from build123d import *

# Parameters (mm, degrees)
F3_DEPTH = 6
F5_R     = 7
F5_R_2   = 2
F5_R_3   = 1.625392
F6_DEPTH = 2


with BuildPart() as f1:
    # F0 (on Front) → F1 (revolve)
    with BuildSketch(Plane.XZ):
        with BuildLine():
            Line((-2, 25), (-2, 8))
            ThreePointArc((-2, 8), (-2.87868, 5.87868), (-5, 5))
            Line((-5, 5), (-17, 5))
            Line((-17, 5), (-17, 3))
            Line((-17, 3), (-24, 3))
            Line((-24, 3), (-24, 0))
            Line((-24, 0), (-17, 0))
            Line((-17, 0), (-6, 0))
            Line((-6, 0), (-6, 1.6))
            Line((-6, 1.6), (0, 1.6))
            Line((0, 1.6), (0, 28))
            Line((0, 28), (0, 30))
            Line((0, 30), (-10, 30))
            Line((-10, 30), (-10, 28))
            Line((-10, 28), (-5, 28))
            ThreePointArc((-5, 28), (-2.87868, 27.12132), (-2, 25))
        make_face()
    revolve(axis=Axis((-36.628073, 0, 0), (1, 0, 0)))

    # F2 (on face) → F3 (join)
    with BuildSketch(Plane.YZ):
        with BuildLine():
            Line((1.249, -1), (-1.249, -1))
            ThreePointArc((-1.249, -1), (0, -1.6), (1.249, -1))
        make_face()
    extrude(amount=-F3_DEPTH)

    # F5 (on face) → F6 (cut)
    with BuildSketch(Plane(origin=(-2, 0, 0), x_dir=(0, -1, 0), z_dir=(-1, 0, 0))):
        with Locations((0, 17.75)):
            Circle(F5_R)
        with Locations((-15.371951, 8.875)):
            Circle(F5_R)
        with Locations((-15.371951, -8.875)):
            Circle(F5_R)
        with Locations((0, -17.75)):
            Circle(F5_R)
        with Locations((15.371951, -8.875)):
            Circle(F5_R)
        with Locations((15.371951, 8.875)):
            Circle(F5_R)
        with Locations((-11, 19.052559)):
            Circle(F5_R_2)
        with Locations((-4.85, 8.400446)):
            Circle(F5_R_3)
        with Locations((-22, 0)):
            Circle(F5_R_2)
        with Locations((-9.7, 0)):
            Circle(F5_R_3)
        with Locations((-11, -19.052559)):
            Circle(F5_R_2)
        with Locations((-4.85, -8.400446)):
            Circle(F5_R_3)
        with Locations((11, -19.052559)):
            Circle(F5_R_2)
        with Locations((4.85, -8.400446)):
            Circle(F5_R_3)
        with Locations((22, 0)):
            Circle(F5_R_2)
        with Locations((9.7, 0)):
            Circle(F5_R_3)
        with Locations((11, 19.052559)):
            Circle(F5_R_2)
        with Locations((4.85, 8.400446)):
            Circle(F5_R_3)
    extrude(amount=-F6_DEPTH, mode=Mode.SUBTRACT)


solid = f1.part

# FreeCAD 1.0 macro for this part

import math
import FreeCAD as App
import Part
import Sketcher
Q = App.Units.Quantity

doc = App.newDocument("Part")
params = doc.addObject("Spreadsheet::Sheet", "Params")
for row, (alias, value) in enumerate([
    ("sketch1_radius", "3.000001 mm"),
    ("sketch1_width", "12 mm"),
    ("sketch1_width2", "7 mm"),
    ("sketch1_width3", "18 mm"),
    ("sketch1_width4", "6 mm"),
    ("revolution_angle", "360 deg"),
    ("sketch2_radius", "1.600001 mm"),
    ("pad1_length", "6 mm"),
    ("sketch3_diameter", "14 mm"),
    ("sketch3_diameter2", "4 mm"),
    ("pocket1_length", "2 mm"),
], start=1):
    params.set(f"A{row}", alias)
    params.set(f"B{row}", "=" + value)
    params.setAlias(f"B{row}", alias)

body = doc.addObject("PartDesign::Body", "Body")

sketch1 = body.newObject("Sketcher::SketchObject", "Sketch")
sketch1.AttachmentSupport = (doc.getObject("XZ_Plane"), [""])
sketch1.MapMode = "FlatFace"
sketch1.addGeometry([
    Part.LineSegment(App.Vector(-2, 25, 0), App.Vector(-2, 8, 0)),
    Part.ArcOfCircle(Part.Circle(App.Vector(-5.000001, 8.000001, 0), App.Vector(0, 0, 1), 3.000001), math.radians(-89.999978), math.radians(-0.000022)),
    Part.LineSegment(App.Vector(-5, 5, 0), App.Vector(-17, 5, 0)),
    Part.LineSegment(App.Vector(-17, 5, 0), App.Vector(-17, 3, 0)),
    Part.LineSegment(App.Vector(-17, 3, 0), App.Vector(-24, 3, 0)),
    Part.LineSegment(App.Vector(-24, 3, 0), App.Vector(-24, 0, 0)),
    Part.LineSegment(App.Vector(-24, 0, 0), App.Vector(-6, 0, 0)),
    Part.LineSegment(App.Vector(-6, 0, 0), App.Vector(-6, 1.6, 0)),
    Part.LineSegment(App.Vector(-6, 1.6, 0), App.Vector(0, 1.6, 0)),
    Part.LineSegment(App.Vector(0, 1.6, 0), App.Vector(0, 30, 0)),
    Part.LineSegment(App.Vector(0, 30, 0), App.Vector(-10, 30, 0)),
    Part.LineSegment(App.Vector(-10, 30, 0), App.Vector(-10, 28, 0)),
    Part.LineSegment(App.Vector(-10, 28, 0), App.Vector(-5, 28, 0)),
    Part.ArcOfCircle(Part.Circle(App.Vector(-5.000001, 24.999999, 0), App.Vector(0, 0, 1), 3.000001), math.radians(0.000022), math.radians(89.999978)),
], False)
sketch1.addConstraint([
    Sketcher.Constraint("Tangent", 0, 2, 1, 2),
    Sketcher.Constraint("Tangent", 1, 1, 2, 1),
    Sketcher.Constraint("Coincident", 2, 2, 3, 1),
    Sketcher.Constraint("Coincident", 3, 2, 4, 1),
    Sketcher.Constraint("Coincident", 4, 2, 5, 1),
    Sketcher.Constraint("Coincident", 5, 2, 6, 1),
    Sketcher.Constraint("Coincident", 6, 2, 7, 1),
    Sketcher.Constraint("Coincident", 7, 2, 8, 1),
    Sketcher.Constraint("Coincident", 8, 2, 9, 1),
    Sketcher.Constraint("Coincident", 9, 2, 10, 1),
    Sketcher.Constraint("Coincident", 10, 2, 11, 1),
    Sketcher.Constraint("Coincident", 11, 2, 12, 1),
    Sketcher.Constraint("Tangent", 12, 2, 13, 2),
    Sketcher.Constraint("Tangent", 13, 1, 0, 1),
    Sketcher.Constraint("Vertical", 0),
    Sketcher.Constraint("Horizontal", 2),
    Sketcher.Constraint("Vertical", 3),
    Sketcher.Constraint("Horizontal", 4),
    Sketcher.Constraint("Vertical", 5),
    Sketcher.Constraint("Horizontal", 6),
    Sketcher.Constraint("Vertical", 7),
    Sketcher.Constraint("Horizontal", 8),
    Sketcher.Constraint("Vertical", 9),
    Sketcher.Constraint("Horizontal", 10),
    Sketcher.Constraint("Vertical", 11),
    Sketcher.Constraint("Horizontal", 12),
    Sketcher.Constraint("Equal", 1, 13),
    Sketcher.Constraint("PointOnObject", 5, 2, -1),
    Sketcher.Constraint("PointOnObject", 8, 2, -2),
    Sketcher.Constraint("Equal", 3, 11),
    Sketcher.Constraint("Radius", 1, Q("3.000001 mm")),
    Sketcher.Constraint("DistanceX", 2, 2, 2, 1, Q("12 mm")),
    Sketcher.Constraint("DistanceX", 4, 2, 4, 1, Q("7 mm")),
    Sketcher.Constraint("DistanceX", 6, 1, 6, 2, Q("18 mm")),
    Sketcher.Constraint("DistanceX", 8, 1, 8, 2, Q("6 mm")),
    Sketcher.Constraint("DistanceX", 10, 2, 10, 1, Q("10 mm")),
    Sketcher.Constraint("DistanceY", 0, 2, 0, 1, Q("17 mm")),
    Sketcher.Constraint("DistanceY", 3, 2, 3, 1, Q("2 mm")),
    Sketcher.Constraint("DistanceY", 5, 2, 5, 1, Q("3 mm")),
    Sketcher.Constraint("DistanceY", 7, 1, 7, 2, Q("1.6 mm")),
])
sketch1.setExpression("Constraints[30]", "Params.sketch1_radius")
sketch1.setExpression("Constraints[31]", "Params.sketch1_width")
sketch1.setExpression("Constraints[32]", "Params.sketch1_width2")
sketch1.setExpression("Constraints[33]", "Params.sketch1_width3")
sketch1.setExpression("Constraints[34]", "Params.sketch1_width4")
revolution = body.newObject("PartDesign::Revolution", "Revolution")
revolution.Profile = sketch1
revolution.ReferenceAxis = (sketch1, ["H_Axis"])
revolution.setExpression("Angle", "Params.revolution_angle")

sketch2 = body.newObject("Sketcher::SketchObject", "Sketch001")
sketch2.AttachmentSupport = (doc.getObject("YZ_Plane"), [""])
sketch2.MapMode = "FlatFace"
sketch2.addGeometry([
    Part.LineSegment(App.Vector(1.249, -1, 0), App.Vector(-1.249, -1, 0)),
    Part.ArcOfCircle(Part.Circle(App.Vector(0, 0.000001, 0), App.Vector(0, 0, 1), 1.600001), math.radians(-141.317798), math.radians(-38.682202)),
], False)
sketch2.addConstraint([
    Sketcher.Constraint("Coincident", 0, 1, 1, 2),
    Sketcher.Constraint("Coincident", 1, 1, 0, 2),
    Sketcher.Constraint("Horizontal", 0),
    Sketcher.Constraint("Coincident", 1, 3, -1, 1),
    Sketcher.Constraint("Radius", 1, Q("1.600001 mm")),
    Sketcher.Constraint("DistanceY", 0, 1, -1, 1, Q("1 mm")),
])
sketch2.setExpression("Constraints[4]", "Params.sketch2_radius")
pad1 = body.newObject("PartDesign::Pad", "Pad")
pad1.Profile = sketch2
pad1.setExpression("Length", "Params.pad1_length")
pad1.Reversed = True

sketch3 = body.newObject("Sketcher::SketchObject", "Sketch002")
sketch3.AttachmentSupport = (doc.getObject("YZ_Plane"), [""])
sketch3.MapMode = "FlatFace"
sketch3.AttachmentOffset = App.Placement(App.Vector(0, 0, -2), App.Rotation())
sketch3.addGeometry([
    Part.Circle(App.Vector(0, 17.75, 0), App.Vector(0, 0, 1), 7),
    Part.Circle(App.Vector(15.371951, 8.875, 0), App.Vector(0, 0, 1), 7),
    Part.Circle(App.Vector(15.371951, -8.875, 0), App.Vector(0, 0, 1), 7),
    Part.Circle(App.Vector(0, -17.75, 0), App.Vector(0, 0, 1), 7),
    Part.Circle(App.Vector(-15.371951, -8.875, 0), App.Vector(0, 0, 1), 7),
    Part.Circle(App.Vector(-15.371951, 8.875, 0), App.Vector(0, 0, 1), 7),
    Part.Circle(App.Vector(11, 19.052559, 0), App.Vector(0, 0, 1), 2),
    Part.Circle(App.Vector(4.85, 8.400446, 0), App.Vector(0, 0, 1), 1.625392),
    Part.Circle(App.Vector(22, 0, 0), App.Vector(0, 0, 1), 2),
    Part.Circle(App.Vector(9.7, 0, 0), App.Vector(0, 0, 1), 1.625392),
    Part.Circle(App.Vector(11, -19.052559, 0), App.Vector(0, 0, 1), 2),
    Part.Circle(App.Vector(4.85, -8.400446, 0), App.Vector(0, 0, 1), 1.625392),
    Part.Circle(App.Vector(-11, -19.052559, 0), App.Vector(0, 0, 1), 2),
    Part.Circle(App.Vector(-4.85, -8.400446, 0), App.Vector(0, 0, 1), 1.625392),
    Part.Circle(App.Vector(-22, 0, 0), App.Vector(0, 0, 1), 2),
    Part.Circle(App.Vector(-9.7, 0, 0), App.Vector(0, 0, 1), 1.625392),
    Part.Circle(App.Vector(-11, 19.052559, 0), App.Vector(0, 0, 1), 2),
    Part.Circle(App.Vector(-4.85, 8.400446, 0), App.Vector(0, 0, 1), 1.625392),
], False)
sketch3.addConstraint([
    Sketcher.Constraint("Equal", 0, 1),
    Sketcher.Constraint("Equal", 1, 2),
    Sketcher.Constraint("Equal", 2, 3),
    Sketcher.Constraint("Equal", 3, 4),
    Sketcher.Constraint("Equal", 4, 5),
    Sketcher.Constraint("Equal", 6, 8),
    Sketcher.Constraint("Equal", 7, 9),
    Sketcher.Constraint("Equal", 8, 10),
    Sketcher.Constraint("Equal", 9, 11),
    Sketcher.Constraint("Equal", 10, 12),
    Sketcher.Constraint("Equal", 11, 13),
    Sketcher.Constraint("Equal", 12, 14),
    Sketcher.Constraint("Equal", 13, 15),
    Sketcher.Constraint("Equal", 14, 16),
    Sketcher.Constraint("Equal", 15, 17),
    Sketcher.Constraint("Symmetric", 0, 3, 3, 3, -1, 1),
    Sketcher.Constraint("Symmetric", 1, 3, 4, 3, -1, 1),
    Sketcher.Constraint("Symmetric", 2, 3, 5, 3, -1, 1),
    Sketcher.Constraint("Symmetric", 6, 3, 12, 3, -1, 1),
    Sketcher.Constraint("Symmetric", 7, 3, 13, 3, -1, 1),
    Sketcher.Constraint("Symmetric", 8, 3, 14, 3, -1, 1),
    Sketcher.Constraint("Symmetric", 9, 3, 15, 3, -1, 1),
    Sketcher.Constraint("Symmetric", 10, 3, 16, 3, -1, 1),
    Sketcher.Constraint("Symmetric", 11, 3, 17, 3, -1, 1),
    Sketcher.Constraint("Symmetric", 2, 3, 4, 3, -2),
    Sketcher.Constraint("Symmetric", 10, 3, 12, 3, -2),
    Sketcher.Constraint("Symmetric", 11, 3, 13, 3, -2),
    Sketcher.Constraint("PointOnObject", 0, 3, -2),
    Sketcher.Constraint("PointOnObject", 8, 3, -1),
    Sketcher.Constraint("PointOnObject", 9, 3, -1),
    Sketcher.Constraint("Diameter", 0, Q("14 mm")),
    Sketcher.Constraint("Diameter", 6, Q("4 mm")),
    Sketcher.Constraint("DistanceX", -1, 1, 6, 3, Q("11 mm")),
    Sketcher.Constraint("DistanceX", -1, 1, 8, 3, Q("22 mm")),
    Sketcher.Constraint("DistanceX", -1, 1, 9, 3, Q("9.7 mm")),
    Sketcher.Constraint("DistanceY", 3, 3, 0, 3, Q("35.5 mm")),
    Sketcher.Constraint("DistanceX", 13, 3, 11, 3, Q("9.7 mm")),
    Sketcher.Constraint("DistanceY", 2, 3, 1, 3, Q("17.75 mm")),
    Sketcher.Constraint("Diameter", 7, Q("3.250784 mm")),
    Sketcher.Constraint("DistanceX", 4, 3, 2, 3, Q("30.743902 mm")),
    Sketcher.Constraint("DistanceY", -1, 1, 6, 3, Q("19.052559 mm")),
    Sketcher.Constraint("DistanceY", -1, 1, 7, 3, Q("8.400446 mm")),
])
sketch3.setExpression("Constraints[30]", "Params.sketch3_diameter")
sketch3.setExpression("Constraints[31]", "Params.sketch3_diameter2")
pocket1 = body.newObject("PartDesign::Pocket", "Pocket")
pocket1.Profile = sketch3
pocket1.setExpression("Length", "Params.pocket1_length")
pocket1.Reversed = True

doc.recompute()
